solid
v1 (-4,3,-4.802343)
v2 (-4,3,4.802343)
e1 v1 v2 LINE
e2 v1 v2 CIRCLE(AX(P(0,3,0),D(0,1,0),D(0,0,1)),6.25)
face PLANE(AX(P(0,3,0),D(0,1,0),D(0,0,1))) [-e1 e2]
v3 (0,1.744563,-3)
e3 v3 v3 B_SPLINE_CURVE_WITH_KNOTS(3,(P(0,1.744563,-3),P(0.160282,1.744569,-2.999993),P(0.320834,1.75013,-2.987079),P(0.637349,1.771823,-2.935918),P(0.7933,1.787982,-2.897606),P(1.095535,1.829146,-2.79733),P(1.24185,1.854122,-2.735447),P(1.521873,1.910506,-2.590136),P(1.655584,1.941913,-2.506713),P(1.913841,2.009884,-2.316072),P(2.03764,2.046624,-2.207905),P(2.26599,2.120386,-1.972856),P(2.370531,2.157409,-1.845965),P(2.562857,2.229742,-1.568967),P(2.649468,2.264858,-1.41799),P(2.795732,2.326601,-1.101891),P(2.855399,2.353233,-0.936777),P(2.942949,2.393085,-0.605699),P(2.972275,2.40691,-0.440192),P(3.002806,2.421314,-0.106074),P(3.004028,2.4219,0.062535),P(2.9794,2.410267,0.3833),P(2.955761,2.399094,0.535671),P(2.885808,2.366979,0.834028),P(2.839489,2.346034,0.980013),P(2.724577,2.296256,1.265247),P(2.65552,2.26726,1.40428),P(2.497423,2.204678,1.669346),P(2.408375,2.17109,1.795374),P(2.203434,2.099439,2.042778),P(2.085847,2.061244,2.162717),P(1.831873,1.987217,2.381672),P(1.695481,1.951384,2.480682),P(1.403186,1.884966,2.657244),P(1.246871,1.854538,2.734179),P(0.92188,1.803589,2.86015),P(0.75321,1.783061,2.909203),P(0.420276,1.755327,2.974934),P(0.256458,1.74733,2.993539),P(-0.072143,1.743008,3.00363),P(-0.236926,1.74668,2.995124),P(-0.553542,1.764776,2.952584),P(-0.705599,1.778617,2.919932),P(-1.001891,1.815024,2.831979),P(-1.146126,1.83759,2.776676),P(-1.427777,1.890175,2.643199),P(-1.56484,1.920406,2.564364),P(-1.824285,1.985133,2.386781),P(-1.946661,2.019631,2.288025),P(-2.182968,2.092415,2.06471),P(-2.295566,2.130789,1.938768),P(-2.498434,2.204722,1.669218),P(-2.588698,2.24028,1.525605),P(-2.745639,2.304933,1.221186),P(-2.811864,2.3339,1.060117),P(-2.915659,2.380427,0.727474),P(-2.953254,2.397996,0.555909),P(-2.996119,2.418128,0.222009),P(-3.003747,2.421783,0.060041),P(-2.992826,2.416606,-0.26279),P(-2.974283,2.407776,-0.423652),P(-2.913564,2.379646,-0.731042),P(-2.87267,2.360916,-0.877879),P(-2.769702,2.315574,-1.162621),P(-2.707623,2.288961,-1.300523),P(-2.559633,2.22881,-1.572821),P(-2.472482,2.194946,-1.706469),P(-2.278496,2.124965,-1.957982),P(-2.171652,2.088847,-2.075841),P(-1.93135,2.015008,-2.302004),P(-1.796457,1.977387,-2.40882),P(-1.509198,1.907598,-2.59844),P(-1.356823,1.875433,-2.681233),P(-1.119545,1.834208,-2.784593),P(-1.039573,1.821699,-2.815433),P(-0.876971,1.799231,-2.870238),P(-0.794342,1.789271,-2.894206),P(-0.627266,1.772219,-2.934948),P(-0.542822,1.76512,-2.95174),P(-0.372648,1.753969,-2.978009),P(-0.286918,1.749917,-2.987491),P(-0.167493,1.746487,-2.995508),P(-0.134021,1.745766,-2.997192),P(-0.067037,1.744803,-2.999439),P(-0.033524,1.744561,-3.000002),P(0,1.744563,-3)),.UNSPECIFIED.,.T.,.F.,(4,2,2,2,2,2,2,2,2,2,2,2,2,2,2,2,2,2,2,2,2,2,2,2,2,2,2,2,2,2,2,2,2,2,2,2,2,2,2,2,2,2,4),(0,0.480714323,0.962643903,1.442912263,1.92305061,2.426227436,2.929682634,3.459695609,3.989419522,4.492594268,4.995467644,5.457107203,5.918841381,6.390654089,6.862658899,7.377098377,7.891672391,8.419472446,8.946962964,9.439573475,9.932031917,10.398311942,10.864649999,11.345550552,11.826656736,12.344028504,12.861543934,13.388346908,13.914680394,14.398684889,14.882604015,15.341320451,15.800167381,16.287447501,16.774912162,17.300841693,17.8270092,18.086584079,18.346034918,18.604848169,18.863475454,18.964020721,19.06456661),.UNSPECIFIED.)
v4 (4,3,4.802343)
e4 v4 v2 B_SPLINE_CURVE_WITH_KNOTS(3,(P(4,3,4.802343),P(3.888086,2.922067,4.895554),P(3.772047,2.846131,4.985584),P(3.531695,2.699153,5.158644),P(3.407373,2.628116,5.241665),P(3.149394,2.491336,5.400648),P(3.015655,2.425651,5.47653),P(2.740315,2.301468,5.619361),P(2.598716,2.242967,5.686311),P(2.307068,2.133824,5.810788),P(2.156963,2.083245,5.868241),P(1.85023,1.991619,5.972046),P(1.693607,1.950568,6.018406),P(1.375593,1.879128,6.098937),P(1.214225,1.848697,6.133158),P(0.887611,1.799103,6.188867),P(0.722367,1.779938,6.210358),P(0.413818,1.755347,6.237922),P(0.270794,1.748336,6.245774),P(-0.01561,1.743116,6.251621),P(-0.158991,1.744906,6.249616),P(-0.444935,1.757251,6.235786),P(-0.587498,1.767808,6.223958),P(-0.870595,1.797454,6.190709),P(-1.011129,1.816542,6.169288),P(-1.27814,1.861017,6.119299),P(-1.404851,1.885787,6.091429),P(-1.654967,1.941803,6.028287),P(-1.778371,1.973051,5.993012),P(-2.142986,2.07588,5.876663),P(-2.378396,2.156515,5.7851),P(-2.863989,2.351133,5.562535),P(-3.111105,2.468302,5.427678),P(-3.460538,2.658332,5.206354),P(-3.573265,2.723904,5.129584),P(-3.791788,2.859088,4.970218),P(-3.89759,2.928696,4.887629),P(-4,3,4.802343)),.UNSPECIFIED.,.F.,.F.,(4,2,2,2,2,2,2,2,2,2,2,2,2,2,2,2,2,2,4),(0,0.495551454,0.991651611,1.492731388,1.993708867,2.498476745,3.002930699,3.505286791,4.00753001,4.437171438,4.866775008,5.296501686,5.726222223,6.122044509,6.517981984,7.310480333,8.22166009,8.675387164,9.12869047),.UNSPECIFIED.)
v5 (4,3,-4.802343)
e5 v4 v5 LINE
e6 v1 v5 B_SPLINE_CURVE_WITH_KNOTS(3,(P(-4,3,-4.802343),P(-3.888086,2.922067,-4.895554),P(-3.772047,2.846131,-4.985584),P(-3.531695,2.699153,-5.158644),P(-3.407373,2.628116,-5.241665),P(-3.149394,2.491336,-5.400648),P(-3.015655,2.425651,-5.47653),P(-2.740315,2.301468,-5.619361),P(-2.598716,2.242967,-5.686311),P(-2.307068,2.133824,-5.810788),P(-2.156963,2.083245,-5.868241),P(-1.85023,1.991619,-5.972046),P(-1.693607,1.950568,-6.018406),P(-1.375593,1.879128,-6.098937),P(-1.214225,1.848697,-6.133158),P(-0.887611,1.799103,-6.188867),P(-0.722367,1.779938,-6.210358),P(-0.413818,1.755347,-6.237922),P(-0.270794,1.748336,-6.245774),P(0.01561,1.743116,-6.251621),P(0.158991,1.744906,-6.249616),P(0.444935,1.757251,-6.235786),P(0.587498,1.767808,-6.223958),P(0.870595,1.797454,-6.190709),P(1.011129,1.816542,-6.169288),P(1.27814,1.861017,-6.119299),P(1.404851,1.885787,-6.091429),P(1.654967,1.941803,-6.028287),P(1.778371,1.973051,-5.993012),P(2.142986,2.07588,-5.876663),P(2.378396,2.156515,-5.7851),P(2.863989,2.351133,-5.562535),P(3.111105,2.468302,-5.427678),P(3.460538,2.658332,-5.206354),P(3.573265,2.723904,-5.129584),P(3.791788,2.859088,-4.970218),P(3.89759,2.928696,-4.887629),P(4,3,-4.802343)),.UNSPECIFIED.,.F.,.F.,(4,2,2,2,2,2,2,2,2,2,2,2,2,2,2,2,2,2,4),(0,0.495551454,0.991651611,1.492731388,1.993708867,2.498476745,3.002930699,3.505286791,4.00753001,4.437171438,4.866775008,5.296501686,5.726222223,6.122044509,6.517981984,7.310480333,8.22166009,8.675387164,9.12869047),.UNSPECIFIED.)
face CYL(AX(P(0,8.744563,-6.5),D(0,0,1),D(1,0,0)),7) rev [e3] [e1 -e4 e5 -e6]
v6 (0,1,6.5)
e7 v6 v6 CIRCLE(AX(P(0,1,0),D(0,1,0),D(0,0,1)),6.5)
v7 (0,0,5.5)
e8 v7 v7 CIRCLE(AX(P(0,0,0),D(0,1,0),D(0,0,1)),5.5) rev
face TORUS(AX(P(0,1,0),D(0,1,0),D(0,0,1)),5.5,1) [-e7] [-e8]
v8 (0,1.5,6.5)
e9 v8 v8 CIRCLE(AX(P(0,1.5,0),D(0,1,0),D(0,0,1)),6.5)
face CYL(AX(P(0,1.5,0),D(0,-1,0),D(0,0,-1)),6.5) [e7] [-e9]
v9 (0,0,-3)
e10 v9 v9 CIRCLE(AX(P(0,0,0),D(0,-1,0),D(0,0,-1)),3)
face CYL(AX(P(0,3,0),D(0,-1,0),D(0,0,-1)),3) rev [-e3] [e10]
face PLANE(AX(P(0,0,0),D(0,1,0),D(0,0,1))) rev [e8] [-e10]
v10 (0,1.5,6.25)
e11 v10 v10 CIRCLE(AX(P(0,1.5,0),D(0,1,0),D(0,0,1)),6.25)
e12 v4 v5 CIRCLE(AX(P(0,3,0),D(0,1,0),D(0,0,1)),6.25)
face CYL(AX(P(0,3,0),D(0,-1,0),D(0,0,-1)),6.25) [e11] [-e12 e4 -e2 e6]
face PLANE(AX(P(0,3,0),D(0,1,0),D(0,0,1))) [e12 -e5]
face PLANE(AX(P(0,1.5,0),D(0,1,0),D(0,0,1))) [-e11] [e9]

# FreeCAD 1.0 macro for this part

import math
import FreeCAD as App
import Part
import Sketcher

V = App.Vector
Q = App.Units.Quantity


def edges_at(feature, points):
    """Names of the edges that pass closest to the given points."""
    edges = feature.Shape.Edges
    near = lambda p: min(range(len(edges)), key=lambda i: edges[i].distToShape(Part.Vertex(*p))[0])
    return sorted({f"Edge{near(p) + 1}" for p in points})

doc = App.newDocument("Part")
body = doc.addObject("PartDesign::Body", "Body")

# Sketch on XZ plane
sketch1 = body.newObject("Sketcher::SketchObject", "Sketch")
sketch1.AttachmentSupport = (doc.getObject("XZ_Plane"), [""])
sketch1.MapMode = "FlatFace"
sketch1.addGeometry(Part.Circle(V(0, 0, 0), V(0, 0, 1), 6), False)
sketch1.addConstraint([
    Sketcher.Constraint("Coincident", 0, 3, -1, 1),
    Sketcher.Constraint("Diameter", 0, Q("13 mm")),
])
pad1 = body.newObject("PartDesign::Pad", "Pad")
pad1.Profile = sketch1
pad1.Length = 1.5
pad1.Reversed = True
doc.recompute()

fillet = body.newObject("PartDesign::Fillet", "Fillet")
fillet.Base = (pad1, edges_at(pad1, [(0, 0, -6.5)]))
fillet.Radius = 1

# Sketch on XZ plane
sketch2 = body.newObject("Sketcher::SketchObject", "Sketch001")
sketch2.AttachmentSupport = (doc.getObject("XZ_Plane"), [""])
sketch2.MapMode = "FlatFace"
sketch2.AttachmentOffset = App.Placement(V(0, 0, -1.5), App.Rotation())
sketch2.addGeometry(Part.Circle(V(0, 0, 0), V(0, 0, 1), 6), False)
sketch2.addConstraint([
    Sketcher.Constraint("Coincident", 0, 3, -1, 1),
    Sketcher.Constraint("Diameter", 0, Q("12.5 mm")),
])
pad2 = body.newObject("PartDesign::Pad", "Pad001")
pad2.Profile = sketch2
pad2.Length = 1.5
pad2.Reversed = True

# Sketch on XY plane
sketch3 = body.newObject("Sketcher::SketchObject", "Sketch002")
sketch3.AttachmentSupport = (doc.getObject("XY_Plane"), [""])
sketch3.MapMode = "FlatFace"
sketch3.addGeometry([
    Part.ArcOfCircle(Part.Circle(V(0, 8.7, 0), V(0, 0, 1), 7), math.radians(-125), math.radians(-90)),
    Part.ArcOfCircle(Part.Circle(V(0, 8.7, 0), V(0, 0, 1), 7), math.radians(-90), math.radians(-55)),
    Part.LineSegment(V(4, 3, 0), V(-4, 3, 0)),
], False)
sketch3.addConstraint([
    Sketcher.Constraint("Tangent", 0, 2, 1, 1),
    Sketcher.Constraint("Coincident", 1, 2, 2, 1),
    Sketcher.Constraint("Coincident", 2, 2, 0, 1),
    Sketcher.Constraint("Horizontal", 2),
    Sketcher.Constraint("Equal", 0, 1),
    Sketcher.Constraint("PointOnObject", 0, 3, -2),
    Sketcher.Constraint("PointOnObject", 0, 2, -2),
    Sketcher.Constraint("Radius", 0, Q("7 mm")),
    Sketcher.Constraint("DistanceX", 2, 2, 2, 1, Q("8 mm")),
    Sketcher.Constraint("DistanceY", -1, 1, 1, 2, Q("3 mm")),
])
pocket1 = body.newObject("PartDesign::Pocket", "Pocket")
pocket1.Profile = sketch3
pocket1.Type = "ThroughAll"
pocket1.Midplane = True

# Sketch on XZ plane
sketch4 = body.newObject("Sketcher::SketchObject", "Sketch003")
sketch4.AttachmentSupport = (doc.getObject("XZ_Plane"), [""])
sketch4.MapMode = "FlatFace"
sketch4.addGeometry(Part.Circle(V(0, 0, 0), V(0, 0, 1), 3), False)
sketch4.addConstraint([
    Sketcher.Constraint("Coincident", 0, 3, -1, 1),
    Sketcher.Constraint("Diameter", 0, Q("6 mm")),
])
pocket2 = body.newObject("PartDesign::Pocket", "Pocket001")
pocket2.Profile = sketch4
pocket2.Type = "ThroughAll"

doc.recompute()
